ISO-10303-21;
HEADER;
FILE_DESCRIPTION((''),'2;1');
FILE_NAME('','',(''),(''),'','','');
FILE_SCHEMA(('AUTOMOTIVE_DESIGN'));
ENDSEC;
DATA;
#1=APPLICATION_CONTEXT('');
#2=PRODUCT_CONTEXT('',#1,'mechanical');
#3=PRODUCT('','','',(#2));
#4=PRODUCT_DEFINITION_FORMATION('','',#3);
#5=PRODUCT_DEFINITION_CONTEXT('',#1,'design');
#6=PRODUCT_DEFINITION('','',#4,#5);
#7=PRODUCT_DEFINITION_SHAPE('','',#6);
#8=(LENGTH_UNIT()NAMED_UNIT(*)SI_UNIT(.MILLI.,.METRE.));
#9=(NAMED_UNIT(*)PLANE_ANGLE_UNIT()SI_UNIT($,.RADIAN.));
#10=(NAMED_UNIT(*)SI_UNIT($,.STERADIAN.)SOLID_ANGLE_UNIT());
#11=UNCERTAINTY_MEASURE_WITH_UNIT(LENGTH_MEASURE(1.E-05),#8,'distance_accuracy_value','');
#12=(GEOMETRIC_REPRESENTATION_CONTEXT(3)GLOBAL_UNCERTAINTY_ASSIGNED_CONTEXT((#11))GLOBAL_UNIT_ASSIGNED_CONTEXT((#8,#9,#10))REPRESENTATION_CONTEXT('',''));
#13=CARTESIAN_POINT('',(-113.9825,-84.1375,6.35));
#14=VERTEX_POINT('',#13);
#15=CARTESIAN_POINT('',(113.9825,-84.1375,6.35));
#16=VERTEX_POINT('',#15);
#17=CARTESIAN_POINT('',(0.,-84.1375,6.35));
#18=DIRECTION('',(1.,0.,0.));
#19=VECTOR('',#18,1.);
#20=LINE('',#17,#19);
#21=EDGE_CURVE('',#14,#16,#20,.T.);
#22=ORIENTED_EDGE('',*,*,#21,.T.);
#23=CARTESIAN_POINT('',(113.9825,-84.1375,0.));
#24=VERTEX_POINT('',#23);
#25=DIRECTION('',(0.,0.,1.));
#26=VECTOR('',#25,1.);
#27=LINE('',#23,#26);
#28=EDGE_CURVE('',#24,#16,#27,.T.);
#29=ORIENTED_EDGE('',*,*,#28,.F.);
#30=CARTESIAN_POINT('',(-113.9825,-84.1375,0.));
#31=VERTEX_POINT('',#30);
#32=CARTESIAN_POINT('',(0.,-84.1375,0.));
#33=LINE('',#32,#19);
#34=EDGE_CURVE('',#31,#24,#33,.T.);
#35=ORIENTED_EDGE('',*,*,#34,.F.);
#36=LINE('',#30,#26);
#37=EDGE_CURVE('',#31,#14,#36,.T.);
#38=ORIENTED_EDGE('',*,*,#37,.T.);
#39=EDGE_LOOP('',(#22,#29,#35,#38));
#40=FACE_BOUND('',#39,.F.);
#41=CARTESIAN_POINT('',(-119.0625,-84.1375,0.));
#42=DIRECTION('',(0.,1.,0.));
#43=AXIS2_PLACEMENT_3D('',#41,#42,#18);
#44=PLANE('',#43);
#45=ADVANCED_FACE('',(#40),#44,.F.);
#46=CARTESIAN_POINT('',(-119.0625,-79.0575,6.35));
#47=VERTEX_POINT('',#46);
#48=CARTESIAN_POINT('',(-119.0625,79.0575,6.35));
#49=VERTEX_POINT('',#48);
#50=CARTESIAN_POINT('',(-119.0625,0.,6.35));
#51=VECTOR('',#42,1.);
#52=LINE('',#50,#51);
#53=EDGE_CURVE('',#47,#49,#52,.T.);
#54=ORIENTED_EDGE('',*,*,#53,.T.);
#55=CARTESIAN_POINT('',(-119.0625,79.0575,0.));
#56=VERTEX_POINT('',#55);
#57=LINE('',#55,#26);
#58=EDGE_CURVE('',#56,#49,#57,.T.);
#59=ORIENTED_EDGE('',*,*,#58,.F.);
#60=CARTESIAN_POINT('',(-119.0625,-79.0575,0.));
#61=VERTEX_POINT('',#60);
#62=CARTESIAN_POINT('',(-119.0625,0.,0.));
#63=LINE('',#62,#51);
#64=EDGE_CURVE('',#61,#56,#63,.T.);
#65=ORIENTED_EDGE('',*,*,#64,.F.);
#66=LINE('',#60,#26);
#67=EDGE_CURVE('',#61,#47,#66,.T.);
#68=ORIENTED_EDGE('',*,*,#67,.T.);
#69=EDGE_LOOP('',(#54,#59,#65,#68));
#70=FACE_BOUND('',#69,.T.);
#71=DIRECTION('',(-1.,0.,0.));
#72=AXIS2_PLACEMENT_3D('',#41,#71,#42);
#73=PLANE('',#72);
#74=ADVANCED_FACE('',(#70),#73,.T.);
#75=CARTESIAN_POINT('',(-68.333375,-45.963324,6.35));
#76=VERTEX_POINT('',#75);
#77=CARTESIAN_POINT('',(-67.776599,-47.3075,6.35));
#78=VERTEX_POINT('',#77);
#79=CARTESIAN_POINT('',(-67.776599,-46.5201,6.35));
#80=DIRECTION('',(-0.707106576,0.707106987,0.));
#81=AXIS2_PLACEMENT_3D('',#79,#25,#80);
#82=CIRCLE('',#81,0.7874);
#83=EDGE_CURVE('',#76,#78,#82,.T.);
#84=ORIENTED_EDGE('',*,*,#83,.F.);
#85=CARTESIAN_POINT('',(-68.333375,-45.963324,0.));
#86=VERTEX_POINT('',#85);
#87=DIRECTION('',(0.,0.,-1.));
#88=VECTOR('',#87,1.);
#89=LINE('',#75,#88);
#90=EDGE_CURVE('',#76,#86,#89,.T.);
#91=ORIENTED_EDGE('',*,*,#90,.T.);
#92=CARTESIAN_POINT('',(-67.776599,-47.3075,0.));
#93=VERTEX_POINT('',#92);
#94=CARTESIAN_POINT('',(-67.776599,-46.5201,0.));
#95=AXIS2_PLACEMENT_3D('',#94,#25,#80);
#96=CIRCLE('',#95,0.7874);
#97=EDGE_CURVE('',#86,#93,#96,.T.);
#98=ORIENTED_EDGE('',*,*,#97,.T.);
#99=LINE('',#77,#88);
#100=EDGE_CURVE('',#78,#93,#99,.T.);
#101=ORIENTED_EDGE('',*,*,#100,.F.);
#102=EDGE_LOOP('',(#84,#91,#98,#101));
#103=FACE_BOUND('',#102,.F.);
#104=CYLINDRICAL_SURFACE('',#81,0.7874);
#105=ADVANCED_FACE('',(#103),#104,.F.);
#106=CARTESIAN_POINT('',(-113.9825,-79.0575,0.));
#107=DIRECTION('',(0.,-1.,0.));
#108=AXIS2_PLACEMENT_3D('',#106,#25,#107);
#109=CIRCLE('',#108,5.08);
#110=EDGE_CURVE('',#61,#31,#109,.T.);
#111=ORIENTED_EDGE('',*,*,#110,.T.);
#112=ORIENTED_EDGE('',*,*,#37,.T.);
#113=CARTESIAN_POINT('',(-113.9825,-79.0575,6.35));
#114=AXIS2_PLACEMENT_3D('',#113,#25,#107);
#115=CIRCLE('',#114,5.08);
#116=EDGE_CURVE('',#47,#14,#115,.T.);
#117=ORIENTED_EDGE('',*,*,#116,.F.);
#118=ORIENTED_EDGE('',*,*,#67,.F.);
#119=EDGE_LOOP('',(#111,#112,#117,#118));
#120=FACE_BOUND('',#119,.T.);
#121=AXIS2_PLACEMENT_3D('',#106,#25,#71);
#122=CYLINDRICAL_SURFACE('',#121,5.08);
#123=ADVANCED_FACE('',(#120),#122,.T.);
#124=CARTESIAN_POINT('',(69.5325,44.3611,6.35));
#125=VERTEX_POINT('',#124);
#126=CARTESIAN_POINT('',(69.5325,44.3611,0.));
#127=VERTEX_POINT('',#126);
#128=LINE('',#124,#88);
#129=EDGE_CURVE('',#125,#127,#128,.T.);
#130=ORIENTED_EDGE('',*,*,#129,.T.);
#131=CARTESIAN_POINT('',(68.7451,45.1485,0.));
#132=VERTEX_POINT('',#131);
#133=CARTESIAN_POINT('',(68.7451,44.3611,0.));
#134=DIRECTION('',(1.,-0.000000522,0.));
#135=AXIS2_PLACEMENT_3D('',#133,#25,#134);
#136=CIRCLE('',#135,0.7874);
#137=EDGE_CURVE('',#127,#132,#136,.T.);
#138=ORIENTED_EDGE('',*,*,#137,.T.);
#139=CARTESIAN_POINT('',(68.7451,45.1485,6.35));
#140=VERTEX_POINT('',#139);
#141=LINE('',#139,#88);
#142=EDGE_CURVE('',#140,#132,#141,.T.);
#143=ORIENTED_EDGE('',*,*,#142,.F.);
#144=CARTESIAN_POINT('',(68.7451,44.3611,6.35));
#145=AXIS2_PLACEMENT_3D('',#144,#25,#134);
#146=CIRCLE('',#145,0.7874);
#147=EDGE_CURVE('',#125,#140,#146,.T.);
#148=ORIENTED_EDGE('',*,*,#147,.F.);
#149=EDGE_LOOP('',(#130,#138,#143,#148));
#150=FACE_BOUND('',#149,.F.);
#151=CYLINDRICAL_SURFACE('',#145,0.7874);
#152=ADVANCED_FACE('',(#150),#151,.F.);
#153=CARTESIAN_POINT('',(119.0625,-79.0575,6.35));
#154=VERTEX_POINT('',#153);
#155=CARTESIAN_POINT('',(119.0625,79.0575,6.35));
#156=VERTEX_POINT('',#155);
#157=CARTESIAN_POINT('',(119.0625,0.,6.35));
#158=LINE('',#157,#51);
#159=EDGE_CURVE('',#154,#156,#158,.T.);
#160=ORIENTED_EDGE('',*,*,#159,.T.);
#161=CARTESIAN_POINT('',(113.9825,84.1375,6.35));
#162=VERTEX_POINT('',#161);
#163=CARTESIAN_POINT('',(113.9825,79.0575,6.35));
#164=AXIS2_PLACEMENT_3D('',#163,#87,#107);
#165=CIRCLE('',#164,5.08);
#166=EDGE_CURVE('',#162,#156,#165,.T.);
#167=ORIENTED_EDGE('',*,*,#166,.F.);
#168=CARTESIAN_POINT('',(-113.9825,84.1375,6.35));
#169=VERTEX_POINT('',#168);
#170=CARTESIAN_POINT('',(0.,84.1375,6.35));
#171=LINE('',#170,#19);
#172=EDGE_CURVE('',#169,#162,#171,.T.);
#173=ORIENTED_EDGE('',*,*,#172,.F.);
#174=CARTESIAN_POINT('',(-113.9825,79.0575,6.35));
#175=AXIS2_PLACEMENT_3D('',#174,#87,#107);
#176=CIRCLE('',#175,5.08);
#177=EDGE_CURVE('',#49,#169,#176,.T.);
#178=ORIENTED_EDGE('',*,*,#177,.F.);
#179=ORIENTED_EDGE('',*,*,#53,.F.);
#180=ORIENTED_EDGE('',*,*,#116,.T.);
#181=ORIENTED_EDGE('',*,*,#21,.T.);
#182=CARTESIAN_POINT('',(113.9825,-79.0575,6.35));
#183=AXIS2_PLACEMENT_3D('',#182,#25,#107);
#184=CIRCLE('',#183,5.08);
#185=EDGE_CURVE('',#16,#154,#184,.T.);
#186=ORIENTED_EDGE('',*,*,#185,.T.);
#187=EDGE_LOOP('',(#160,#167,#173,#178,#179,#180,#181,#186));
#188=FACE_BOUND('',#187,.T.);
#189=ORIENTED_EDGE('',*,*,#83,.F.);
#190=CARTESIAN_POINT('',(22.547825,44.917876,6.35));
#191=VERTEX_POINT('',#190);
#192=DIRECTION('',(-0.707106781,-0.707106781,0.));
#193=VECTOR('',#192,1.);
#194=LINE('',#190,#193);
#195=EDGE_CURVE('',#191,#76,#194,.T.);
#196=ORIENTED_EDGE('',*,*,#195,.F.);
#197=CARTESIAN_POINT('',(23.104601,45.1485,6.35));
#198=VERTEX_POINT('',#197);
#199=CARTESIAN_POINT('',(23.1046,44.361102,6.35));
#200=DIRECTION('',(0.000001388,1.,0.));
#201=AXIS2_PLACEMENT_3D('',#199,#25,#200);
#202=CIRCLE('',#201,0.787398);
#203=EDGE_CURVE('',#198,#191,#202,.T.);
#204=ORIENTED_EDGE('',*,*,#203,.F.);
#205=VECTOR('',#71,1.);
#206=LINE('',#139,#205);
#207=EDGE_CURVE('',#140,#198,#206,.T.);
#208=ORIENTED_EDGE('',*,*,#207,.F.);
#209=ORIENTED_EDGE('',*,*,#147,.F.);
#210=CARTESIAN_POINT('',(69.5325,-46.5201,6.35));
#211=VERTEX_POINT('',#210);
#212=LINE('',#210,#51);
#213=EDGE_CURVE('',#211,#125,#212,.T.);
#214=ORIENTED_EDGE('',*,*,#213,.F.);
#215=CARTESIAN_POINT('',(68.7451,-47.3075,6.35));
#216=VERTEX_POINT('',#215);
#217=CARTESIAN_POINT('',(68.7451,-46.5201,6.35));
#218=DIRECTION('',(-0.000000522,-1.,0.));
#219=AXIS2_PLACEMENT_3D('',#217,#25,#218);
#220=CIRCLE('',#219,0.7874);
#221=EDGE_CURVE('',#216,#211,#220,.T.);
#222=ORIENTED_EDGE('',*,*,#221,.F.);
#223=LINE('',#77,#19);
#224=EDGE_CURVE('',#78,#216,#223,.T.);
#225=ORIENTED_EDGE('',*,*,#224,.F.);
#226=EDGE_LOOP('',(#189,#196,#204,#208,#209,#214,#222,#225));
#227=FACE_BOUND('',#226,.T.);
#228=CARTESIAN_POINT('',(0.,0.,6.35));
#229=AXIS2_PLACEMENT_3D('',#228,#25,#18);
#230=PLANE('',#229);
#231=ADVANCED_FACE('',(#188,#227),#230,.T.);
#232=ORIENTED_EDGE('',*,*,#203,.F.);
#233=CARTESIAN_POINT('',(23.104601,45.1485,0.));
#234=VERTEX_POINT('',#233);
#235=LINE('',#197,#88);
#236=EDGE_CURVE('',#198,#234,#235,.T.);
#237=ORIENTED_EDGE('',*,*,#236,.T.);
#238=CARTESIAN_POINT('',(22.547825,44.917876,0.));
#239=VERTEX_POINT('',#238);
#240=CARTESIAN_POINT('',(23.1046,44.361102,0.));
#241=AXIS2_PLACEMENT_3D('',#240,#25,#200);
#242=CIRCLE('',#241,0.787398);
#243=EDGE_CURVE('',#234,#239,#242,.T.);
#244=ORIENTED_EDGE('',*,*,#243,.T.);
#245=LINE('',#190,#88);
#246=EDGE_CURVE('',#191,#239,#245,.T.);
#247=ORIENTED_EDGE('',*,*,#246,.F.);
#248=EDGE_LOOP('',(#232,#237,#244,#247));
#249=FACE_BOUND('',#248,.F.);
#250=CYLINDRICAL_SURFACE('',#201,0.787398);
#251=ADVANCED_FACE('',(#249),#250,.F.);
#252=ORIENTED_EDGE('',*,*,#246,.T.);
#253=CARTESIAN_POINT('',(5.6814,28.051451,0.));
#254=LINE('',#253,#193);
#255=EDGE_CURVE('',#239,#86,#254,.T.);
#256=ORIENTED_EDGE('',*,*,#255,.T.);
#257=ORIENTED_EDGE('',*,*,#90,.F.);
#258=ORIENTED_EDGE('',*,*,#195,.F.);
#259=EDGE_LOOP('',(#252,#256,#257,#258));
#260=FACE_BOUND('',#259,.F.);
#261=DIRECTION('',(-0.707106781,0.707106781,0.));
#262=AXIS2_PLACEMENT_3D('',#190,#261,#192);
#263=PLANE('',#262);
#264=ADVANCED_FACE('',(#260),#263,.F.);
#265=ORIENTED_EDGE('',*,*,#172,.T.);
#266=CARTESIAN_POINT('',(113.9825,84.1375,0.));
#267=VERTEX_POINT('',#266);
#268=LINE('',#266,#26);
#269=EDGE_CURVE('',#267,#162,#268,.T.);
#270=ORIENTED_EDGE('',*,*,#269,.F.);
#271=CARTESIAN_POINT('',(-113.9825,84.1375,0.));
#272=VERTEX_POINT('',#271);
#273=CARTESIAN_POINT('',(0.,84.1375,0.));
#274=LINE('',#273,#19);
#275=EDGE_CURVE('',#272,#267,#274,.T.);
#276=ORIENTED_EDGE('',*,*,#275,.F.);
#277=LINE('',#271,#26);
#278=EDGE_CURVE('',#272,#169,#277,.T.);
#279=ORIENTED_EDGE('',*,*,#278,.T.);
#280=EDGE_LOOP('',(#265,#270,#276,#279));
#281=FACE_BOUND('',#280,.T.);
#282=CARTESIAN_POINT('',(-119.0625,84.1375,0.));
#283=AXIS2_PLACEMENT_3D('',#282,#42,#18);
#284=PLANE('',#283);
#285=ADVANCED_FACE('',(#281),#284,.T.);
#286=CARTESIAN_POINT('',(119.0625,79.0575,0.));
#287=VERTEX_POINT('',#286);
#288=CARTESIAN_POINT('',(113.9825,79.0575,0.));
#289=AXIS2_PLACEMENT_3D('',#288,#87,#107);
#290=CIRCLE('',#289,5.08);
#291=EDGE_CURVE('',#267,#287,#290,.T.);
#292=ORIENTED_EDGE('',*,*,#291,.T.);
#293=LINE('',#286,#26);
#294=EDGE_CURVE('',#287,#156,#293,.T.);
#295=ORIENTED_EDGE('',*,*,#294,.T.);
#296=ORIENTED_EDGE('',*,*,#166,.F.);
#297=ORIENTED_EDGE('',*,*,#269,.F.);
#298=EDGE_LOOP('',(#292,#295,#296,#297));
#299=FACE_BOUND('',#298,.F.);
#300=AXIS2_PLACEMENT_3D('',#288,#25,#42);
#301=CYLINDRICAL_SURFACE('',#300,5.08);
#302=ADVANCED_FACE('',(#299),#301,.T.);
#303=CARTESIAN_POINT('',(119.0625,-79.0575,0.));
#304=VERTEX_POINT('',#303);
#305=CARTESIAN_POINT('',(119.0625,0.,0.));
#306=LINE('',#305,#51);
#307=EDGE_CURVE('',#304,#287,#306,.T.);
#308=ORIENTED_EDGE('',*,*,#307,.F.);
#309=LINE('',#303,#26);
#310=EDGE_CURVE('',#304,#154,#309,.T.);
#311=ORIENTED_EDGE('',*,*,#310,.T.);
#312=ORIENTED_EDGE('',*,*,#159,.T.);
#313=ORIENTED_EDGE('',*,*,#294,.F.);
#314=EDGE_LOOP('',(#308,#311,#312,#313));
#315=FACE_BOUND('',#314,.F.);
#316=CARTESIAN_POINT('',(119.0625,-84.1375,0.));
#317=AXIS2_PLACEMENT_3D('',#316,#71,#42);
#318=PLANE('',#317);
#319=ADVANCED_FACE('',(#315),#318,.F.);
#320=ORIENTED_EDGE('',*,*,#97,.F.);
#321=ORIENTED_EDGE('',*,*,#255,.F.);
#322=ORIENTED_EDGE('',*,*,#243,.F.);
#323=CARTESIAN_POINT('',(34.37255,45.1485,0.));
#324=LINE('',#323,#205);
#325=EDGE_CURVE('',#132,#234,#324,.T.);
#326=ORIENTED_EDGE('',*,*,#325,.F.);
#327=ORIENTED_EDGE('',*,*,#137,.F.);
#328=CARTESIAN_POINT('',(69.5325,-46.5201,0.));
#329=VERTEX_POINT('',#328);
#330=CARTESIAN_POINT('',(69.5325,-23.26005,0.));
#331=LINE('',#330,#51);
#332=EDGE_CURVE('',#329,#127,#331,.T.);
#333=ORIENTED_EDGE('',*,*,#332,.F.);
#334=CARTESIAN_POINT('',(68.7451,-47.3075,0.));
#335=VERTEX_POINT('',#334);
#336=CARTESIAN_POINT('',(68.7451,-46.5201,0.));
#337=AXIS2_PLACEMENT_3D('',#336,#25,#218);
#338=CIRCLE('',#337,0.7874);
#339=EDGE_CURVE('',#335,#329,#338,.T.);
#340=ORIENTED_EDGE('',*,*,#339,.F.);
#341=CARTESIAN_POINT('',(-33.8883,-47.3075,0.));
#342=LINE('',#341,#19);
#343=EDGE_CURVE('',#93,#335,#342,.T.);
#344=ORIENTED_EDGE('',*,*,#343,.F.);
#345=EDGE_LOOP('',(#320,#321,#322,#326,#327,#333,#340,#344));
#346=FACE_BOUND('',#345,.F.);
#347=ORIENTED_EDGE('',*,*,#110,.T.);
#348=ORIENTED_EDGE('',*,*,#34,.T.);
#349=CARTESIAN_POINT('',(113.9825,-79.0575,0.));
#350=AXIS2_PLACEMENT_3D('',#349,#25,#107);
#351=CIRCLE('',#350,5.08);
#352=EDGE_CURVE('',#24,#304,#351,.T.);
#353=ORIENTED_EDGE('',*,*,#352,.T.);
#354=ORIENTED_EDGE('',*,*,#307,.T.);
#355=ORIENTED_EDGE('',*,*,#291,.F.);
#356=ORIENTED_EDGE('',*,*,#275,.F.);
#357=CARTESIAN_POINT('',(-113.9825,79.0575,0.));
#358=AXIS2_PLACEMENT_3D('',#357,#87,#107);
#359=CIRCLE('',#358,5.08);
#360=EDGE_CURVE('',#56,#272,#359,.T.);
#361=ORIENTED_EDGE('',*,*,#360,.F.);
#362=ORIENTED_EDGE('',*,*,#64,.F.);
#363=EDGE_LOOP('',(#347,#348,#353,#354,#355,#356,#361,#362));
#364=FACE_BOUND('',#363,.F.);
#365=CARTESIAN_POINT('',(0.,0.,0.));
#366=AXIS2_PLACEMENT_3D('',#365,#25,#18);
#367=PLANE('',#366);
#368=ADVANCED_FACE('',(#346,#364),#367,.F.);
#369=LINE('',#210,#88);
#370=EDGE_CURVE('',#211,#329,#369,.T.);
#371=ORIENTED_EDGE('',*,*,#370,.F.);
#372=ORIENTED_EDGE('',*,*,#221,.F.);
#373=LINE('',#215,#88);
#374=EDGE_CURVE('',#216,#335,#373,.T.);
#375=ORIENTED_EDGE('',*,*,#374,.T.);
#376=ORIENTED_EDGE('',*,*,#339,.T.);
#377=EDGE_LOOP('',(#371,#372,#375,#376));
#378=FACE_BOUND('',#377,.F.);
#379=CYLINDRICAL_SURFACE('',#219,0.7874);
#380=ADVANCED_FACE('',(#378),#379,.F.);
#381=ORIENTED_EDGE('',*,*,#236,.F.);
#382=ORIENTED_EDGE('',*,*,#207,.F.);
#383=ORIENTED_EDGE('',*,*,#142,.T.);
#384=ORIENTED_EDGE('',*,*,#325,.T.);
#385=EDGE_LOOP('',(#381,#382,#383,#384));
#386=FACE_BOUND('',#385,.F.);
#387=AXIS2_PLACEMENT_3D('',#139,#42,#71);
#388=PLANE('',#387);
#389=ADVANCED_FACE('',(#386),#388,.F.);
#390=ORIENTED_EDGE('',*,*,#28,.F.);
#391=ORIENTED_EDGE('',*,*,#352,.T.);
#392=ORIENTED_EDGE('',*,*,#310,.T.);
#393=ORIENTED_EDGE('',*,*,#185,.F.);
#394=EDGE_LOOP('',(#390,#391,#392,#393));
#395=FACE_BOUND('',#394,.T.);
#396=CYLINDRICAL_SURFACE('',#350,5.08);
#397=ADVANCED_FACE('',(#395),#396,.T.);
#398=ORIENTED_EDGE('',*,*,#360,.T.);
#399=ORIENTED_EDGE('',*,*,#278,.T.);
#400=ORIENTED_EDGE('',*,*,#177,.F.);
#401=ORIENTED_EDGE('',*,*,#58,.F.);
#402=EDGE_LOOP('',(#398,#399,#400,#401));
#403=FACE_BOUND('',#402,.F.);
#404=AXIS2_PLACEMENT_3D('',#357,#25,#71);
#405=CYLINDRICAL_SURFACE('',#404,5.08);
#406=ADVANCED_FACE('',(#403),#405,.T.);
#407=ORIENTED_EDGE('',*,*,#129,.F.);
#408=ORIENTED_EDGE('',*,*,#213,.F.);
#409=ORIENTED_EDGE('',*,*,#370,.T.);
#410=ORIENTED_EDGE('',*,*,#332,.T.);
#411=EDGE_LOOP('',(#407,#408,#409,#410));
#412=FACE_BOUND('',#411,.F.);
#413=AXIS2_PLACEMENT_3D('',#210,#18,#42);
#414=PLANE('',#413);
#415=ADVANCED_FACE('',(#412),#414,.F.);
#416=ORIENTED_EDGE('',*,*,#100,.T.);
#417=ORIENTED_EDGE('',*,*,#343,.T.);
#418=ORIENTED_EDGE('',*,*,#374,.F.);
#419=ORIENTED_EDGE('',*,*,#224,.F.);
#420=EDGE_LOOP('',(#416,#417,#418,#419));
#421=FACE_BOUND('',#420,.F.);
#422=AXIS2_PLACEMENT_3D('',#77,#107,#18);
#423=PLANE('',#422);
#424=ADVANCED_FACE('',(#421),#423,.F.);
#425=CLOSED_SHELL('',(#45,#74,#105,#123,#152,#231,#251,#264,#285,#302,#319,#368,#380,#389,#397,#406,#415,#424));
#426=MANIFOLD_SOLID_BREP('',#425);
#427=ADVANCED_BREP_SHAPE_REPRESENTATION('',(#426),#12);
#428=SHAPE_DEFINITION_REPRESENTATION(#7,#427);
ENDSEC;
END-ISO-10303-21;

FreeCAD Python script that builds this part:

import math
import FreeCAD as App
import Part
import Sketcher
from FreeCAD import Vector
Q = App.Units.Quantity


def edges_at(feature, points):
    """Names of the edges that pass closest to the given points."""
    edges = feature.Shape.Edges
    near = lambda p: min(range(len(edges)), key=lambda i: edges[i].distToShape(Part.Vertex(*p))[0])
    return sorted({f"Edge{near(p) + 1}" for p in points})


def add_polygon(sketch, points):
    """Adds a closed chain of lines whose ends are joined by coincident constraints."""
    first, n = sketch.GeometryCount, len(points)
    for a, b in zip(points, points[1:] + points[:1]):
        sketch.addGeometry(Part.LineSegment(App.Vector(*a, 0), App.Vector(*b, 0)), False)
    for i in range(n):
        sketch.addConstraint(Sketcher.Constraint("Coincident", first + i, 2, first + (i + 1) % n, 1))

doc = App.newDocument("Part")
body = doc.addObject("PartDesign::Body", "Body")

# Sketch on XY plane
sketch1 = body.newObject("Sketcher::SketchObject", "Sketch")
sketch1.AttachmentSupport = (doc.getObject("XY_Plane"), [""])
sketch1.MapMode = "FlatFace"
add_polygon(sketch1, [(-119, 84), (-119, -84), (119, -84), (119, 84)])  # lines 0-3
sketch1.addConstraint([
    Sketcher.Constraint("Vertical", 0),
    Sketcher.Constraint("Horizontal", 1),
    Sketcher.Constraint("Vertical", 2),
    Sketcher.Constraint("Horizontal", 3),
    Sketcher.Constraint("Symmetric", 0, 2, 2, 2, -1, 1),
    Sketcher.Constraint("DistanceX", 1, 1, 1, 2, Q("9.375 in")),
    Sketcher.Constraint("DistanceY", 0, 2, 0, 1, Q("6.625 in")),
])
pad1 = body.newObject("PartDesign::Pad", "Pad")
pad1.Profile = sketch1
pad1.Length = Q("0.25 in")

# Sketch on XY plane
sketch2 = body.newObject("Sketcher::SketchObject", "Sketch001")
sketch2.AttachmentSupport = (doc.getObject("XY_Plane"), [""])
sketch2.MapMode = "FlatFace"
sketch2.AttachmentOffset = App.Placement(Vector(0, 0, 0.25 * 25.4), App.Rotation())
add_polygon(sketch2, [(23, 44), (-67, -46), (68, -46), (68, 44)])  # lines 0-3
sketch2.addConstraint([
    Sketcher.Constraint("Horizontal", 1),
    Sketcher.Constraint("Vertical", 2),
    Sketcher.Constraint("Horizontal", 3),
    Sketcher.Constraint("Angle", 0, Q("-135 deg")),
    Sketcher.Constraint("DistanceX", 1, 1, 1, 2, Q("5.31 in")),
    Sketcher.Constraint("DistanceX", 3, 2, 3, 1, Q("1.77 in")),
    Sketcher.Constraint("DistanceY", 0, 2, -1, 1, Q("1.8125 in")),
    Sketcher.Constraint("DistanceX", -1, 1, 1, 2, Q("2.6875 in")),
])
pocket1 = body.newObject("PartDesign::Pocket", "Pocket")
pocket1.Profile = sketch2
pocket1.Length = Q("1 in")
doc.recompute()

fillet = body.newObject("PartDesign::Fillet", "Fillet")
fillet.Base = (pocket1, edges_at(pocket1, [
    (119.062, -84.138, 3.175),
    (119.062, 84.138, 3.175),
    (-119.062, -84.138, 3.175),
    (-119.062, 84.138, 3.175),
]))
fillet.Radius = Q("0.2 in")

# Sketch on XY plane
sketch3 = body.newObject("Sketcher::SketchObject", "Sketch002")
sketch3.AttachmentSupport = (doc.getObject("XY_Plane"), [""])
sketch3.MapMode = "FlatFace"
sketch3.AttachmentOffset = App.Placement(Vector(0, 0, 0.25 * 25.4), App.Rotation())
add_polygon(sketch3, [(23, 44), (-67, -46), (68, -46), (68, 44)])  # lines 0-3
sketch3.addConstraint([
    Sketcher.Constraint("Horizontal", 1),
    Sketcher.Constraint("Vertical", 2),
    Sketcher.Constraint("Horizontal", 3),
    Sketcher.Constraint("Angle", 0, Q("-135 deg")),
    Sketcher.Constraint("DistanceX", 1, 1, 1, 2, Q("5.31 in")),
    Sketcher.Constraint("DistanceX", 3, 2, 3, 1, Q("1.77 in")),
    Sketcher.Constraint("DistanceY", 0, 2, -1, 1, Q("1.8125 in")),
    Sketcher.Constraint("DistanceX", -1, 1, 1, 2, Q("2.6875 in")),
])
pocket2 = body.newObject("PartDesign::Pocket", "Pocket001")
pocket2.Profile = sketch3
pocket2.Type = "ThroughAll"

# Sketch on XY plane
sketch4 = body.newObject("Sketcher::SketchObject", "Sketch003")
sketch4.AttachmentSupport = (doc.getObject("XY_Plane"), [""])
sketch4.MapMode = "FlatFace"
sketch4.AttachmentOffset = App.Placement(Vector(0, 0, 0.25 * 25.4), App.Rotation())
sketch4.addGeometry([
    Part.LineSegment(Vector(68.7, 45.1, 0), Vector(23.1, 45.1, 0)),  # 0
    Part.ArcOfCircle(Part.Circle(Vector(23.1, 44.4, 0), Vector(0, 0, 1), 0.8), math.radians(90), math.radians(135)),  # 1
    Part.LineSegment(Vector(22.5, 44.9, 0), Vector(-68.3, -46, 0)),  # 2
    Part.ArcOfCircle(Part.Circle(Vector(-67.8, -46.5, 0), Vector(0, 0, 1), 0.8), math.radians(135), math.radians(270)),  # 3
    Part.LineSegment(Vector(-67.8, -47.3, 0), Vector(68.7, -47.3, 0)),  # 4
    Part.ArcOfCircle(Part.Circle(Vector(68.7, -46.5, 0), Vector(0, 0, 1), 0.8), math.radians(-90), math.radians(0)),  # 5
    Part.LineSegment(Vector(69.5, -46.5, 0), Vector(69.5, 44.4, 0)),  # 6
    Part.ArcOfCircle(Part.Circle(Vector(68.7, 44.4, 0), Vector(0, 0, 1), 0.8), math.radians(0), math.radians(90)),  # 7
], False)
sketch4.addConstraint([
    Sketcher.Constraint("Tangent", 0, 2, 1, 1),
    Sketcher.Constraint("Tangent", 1, 2, 2, 1),
    Sketcher.Constraint("Tangent", 2, 2, 3, 1),
    Sketcher.Constraint("Tangent", 3, 2, 4, 1),
    Sketcher.Constraint("Tangent", 4, 2, 5, 1),
    Sketcher.Constraint("Tangent", 5, 2, 6, 1),
    Sketcher.Constraint("Tangent", 6, 2, 7, 1),
    Sketcher.Constraint("Tangent", 7, 2, 0, 1),
    Sketcher.Constraint("Horizontal", 0),
    Sketcher.Constraint("Horizontal", 4),
    Sketcher.Constraint("Vertical", 6),
    Sketcher.Constraint("Equal", 3, 5),
    Sketcher.Constraint("Equal", 5, 7),
    Sketcher.Constraint("Horizontal", 1, 3, 7, 3),
    Sketcher.Constraint("Angle", 2, Q("-135 deg")),
    Sketcher.Constraint("Radius", 1, Q("0.0309999 in")),
    Sketcher.Constraint("DistanceY", 6, 1, 6, 2, Q("3.578 in")),
    Sketcher.Constraint("DistanceX", 0, 2, 0, 1, 45.640499),
    Sketcher.Constraint("DistanceY", -1, 1, 1, 3, Q("1.7465001 in")),
    Sketcher.Constraint("DistanceX", -1, 1, 5, 3, Q("2.7065 in")),
])
pocket3 = body.newObject("PartDesign::Pocket", "Pocket002")
pocket3.Profile = sketch4
pocket3.Type = "ThroughAll"

doc.recompute()
